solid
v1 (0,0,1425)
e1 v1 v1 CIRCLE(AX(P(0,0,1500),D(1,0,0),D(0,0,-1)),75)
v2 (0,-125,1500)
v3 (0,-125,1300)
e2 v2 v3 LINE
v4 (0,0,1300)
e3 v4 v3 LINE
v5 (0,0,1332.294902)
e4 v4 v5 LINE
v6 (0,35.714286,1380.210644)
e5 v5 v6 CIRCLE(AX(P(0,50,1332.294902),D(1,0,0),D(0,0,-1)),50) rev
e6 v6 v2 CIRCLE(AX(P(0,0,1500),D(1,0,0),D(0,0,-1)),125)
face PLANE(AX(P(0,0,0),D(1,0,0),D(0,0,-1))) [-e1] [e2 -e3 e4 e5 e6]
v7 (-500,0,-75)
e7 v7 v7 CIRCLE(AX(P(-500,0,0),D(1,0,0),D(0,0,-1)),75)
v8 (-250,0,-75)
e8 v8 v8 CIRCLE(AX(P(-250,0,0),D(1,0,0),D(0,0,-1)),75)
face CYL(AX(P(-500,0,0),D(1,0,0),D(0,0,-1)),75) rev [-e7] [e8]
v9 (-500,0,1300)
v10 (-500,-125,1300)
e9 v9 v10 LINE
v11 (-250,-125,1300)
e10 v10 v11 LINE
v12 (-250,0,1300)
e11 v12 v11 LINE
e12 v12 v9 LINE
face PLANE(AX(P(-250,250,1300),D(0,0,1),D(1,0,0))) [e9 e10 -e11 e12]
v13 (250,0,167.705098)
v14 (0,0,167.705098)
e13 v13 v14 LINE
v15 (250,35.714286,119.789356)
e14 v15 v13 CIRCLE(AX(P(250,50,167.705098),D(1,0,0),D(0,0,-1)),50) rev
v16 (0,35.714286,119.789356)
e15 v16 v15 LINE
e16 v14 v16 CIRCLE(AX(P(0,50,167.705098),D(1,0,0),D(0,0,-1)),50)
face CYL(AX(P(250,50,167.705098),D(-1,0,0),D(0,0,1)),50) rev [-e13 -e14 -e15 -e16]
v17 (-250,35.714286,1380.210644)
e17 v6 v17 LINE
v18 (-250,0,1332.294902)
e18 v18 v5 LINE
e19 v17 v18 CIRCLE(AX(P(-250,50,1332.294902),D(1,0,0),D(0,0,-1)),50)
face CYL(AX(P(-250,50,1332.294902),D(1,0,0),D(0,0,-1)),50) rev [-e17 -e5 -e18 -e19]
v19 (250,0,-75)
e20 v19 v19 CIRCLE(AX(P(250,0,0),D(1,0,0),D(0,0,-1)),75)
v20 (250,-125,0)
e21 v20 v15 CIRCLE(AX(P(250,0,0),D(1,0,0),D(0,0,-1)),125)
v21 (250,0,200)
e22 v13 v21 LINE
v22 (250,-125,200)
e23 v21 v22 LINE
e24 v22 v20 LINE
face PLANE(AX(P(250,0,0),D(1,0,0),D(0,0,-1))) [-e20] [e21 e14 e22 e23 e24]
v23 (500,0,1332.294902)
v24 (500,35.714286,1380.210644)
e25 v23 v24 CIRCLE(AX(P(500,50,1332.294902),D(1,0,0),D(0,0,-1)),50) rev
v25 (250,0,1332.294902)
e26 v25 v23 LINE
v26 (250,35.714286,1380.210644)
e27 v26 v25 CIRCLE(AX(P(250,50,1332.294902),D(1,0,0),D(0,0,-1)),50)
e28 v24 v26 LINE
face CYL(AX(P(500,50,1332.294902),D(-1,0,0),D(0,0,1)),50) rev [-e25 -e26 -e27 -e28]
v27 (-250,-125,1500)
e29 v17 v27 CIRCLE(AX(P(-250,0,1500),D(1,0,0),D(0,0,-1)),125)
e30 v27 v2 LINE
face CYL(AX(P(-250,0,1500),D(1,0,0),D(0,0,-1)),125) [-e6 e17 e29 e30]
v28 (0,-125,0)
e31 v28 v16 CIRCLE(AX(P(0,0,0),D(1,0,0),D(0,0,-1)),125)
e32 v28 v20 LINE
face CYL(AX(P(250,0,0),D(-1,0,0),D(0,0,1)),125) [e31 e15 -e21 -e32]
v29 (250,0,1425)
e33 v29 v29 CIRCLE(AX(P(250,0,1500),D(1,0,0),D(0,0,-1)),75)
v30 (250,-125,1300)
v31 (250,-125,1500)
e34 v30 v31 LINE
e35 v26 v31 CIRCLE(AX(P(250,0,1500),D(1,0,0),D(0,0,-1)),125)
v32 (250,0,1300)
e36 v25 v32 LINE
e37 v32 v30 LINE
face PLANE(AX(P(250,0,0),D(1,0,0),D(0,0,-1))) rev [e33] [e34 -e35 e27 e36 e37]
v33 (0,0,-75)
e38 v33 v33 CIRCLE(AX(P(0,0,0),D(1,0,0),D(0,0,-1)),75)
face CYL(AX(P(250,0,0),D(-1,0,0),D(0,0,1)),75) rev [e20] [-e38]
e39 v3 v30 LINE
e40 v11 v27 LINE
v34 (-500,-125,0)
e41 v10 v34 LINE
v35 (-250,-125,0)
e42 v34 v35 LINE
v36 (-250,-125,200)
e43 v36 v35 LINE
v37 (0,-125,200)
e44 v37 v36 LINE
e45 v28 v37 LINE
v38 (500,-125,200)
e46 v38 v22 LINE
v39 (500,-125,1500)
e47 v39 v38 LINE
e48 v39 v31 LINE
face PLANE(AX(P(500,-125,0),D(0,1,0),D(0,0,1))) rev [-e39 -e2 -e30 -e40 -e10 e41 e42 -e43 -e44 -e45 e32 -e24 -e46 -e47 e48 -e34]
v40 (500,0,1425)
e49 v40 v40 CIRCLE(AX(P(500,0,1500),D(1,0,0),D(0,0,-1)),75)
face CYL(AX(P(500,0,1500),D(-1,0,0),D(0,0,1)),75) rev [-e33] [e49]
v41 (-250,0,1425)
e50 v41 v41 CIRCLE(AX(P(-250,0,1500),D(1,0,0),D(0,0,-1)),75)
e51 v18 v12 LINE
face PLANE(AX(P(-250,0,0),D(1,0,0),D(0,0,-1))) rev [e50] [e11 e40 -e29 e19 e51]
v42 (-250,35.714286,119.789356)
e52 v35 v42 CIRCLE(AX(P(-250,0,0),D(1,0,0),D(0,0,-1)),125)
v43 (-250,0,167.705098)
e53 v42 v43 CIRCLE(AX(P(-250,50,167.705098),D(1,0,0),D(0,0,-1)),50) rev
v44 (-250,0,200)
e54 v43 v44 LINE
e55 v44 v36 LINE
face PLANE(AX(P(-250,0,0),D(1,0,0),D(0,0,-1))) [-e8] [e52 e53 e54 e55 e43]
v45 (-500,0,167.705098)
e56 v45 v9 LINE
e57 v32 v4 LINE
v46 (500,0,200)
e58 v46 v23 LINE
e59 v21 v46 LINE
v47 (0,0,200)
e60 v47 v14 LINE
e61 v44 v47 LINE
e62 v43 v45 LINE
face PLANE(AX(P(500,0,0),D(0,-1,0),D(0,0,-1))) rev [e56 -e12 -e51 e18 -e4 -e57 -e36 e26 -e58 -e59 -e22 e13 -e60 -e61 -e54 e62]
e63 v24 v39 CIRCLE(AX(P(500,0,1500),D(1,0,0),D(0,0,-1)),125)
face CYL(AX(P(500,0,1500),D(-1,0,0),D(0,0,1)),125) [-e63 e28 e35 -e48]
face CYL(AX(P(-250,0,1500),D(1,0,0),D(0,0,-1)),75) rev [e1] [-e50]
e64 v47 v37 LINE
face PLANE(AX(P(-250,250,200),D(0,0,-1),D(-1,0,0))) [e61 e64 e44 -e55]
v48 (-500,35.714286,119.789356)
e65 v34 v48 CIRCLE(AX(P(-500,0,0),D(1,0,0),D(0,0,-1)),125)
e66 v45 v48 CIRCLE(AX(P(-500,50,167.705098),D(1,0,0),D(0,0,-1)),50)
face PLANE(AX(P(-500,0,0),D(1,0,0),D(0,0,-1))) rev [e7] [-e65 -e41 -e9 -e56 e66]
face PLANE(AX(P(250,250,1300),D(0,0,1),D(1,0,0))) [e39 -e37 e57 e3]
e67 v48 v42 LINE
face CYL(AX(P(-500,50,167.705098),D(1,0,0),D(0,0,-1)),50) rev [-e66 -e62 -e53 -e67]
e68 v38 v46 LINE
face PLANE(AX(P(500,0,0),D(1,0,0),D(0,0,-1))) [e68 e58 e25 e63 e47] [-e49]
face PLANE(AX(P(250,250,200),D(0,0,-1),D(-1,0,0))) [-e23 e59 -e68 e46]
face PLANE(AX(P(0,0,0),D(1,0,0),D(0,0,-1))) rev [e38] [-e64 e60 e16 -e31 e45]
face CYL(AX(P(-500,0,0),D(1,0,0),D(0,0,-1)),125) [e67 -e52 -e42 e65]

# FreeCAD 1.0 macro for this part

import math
import FreeCAD as App
import Part
import Sketcher
Q = App.Units.Quantity


def edges_at(feature, points):
    """Names of the edges that pass closest to the given points."""
    edges = feature.Shape.Edges
    near = lambda p: min(range(len(edges)), key=lambda i: edges[i].distToShape(Part.Vertex(*p))[0])
    return sorted({f"Edge{near(p) + 1}" for p in points})

doc = App.newDocument("Part")
body = doc.addObject("PartDesign::Body", "Body")

sketch1 = body.newObject("Sketcher::SketchObject", "Sketch")
sketch1.AttachmentSupport = (doc.getObject("YZ_Plane"), [""])
sketch1.MapMode = "FlatFace"
sketch1.addGeometry([
    Part.ArcOfCircle(Part.Circle(App.Vector(0, 0, 0), App.Vector(0, 0, 1), 125), math.radians(90), math.radians(180)),
    Part.LineSegment(App.Vector(0, 125, 0), App.Vector(0, 1375, 0)),
    Part.ArcOfCircle(Part.Circle(App.Vector(0, 1500, 0), App.Vector(0, 0, 1), 125), math.radians(-180), math.radians(-90)),
    Part.LineSegment(App.Vector(-125, 1500, 0), App.Vector(-125, 0, 0)),
], False)
sketch1.addConstraint([
    Sketcher.Constraint("Coincident", 0, 1, 1, 1),
    Sketcher.Constraint("Coincident", 1, 2, 2, 2),
    Sketcher.Constraint("Tangent", 2, 1, 3, 1),
    Sketcher.Constraint("Tangent", 3, 2, 0, 2),
    Sketcher.Constraint("Vertical", 1),
    Sketcher.Constraint("Vertical", 3),
    Sketcher.Constraint("Coincident", 0, 3, -1, 1),
    Sketcher.Constraint("Equal", 0, 2),
    Sketcher.Constraint("PointOnObject", 0, 1, -2),
    Sketcher.Constraint("Radius", 0, Q("125 mm")),
    Sketcher.Constraint("DistanceY", 1, 1, 1, 2, Q("1250 mm")),
])
pad1 = body.newObject("PartDesign::Pad", "Pad")
pad1.Profile = sketch1
pad1.Length = 1000
pad1.Midplane = True

sketch2 = body.newObject("Sketcher::SketchObject", "Sketch001")
sketch2.AttachmentSupport = (doc.getObject("YZ_Plane"), [""])
sketch2.MapMode = "FlatFace"
sketch2.AttachmentOffset = App.Placement(App.Vector(0, 0, 250), App.Rotation())
sketch2.addGeometry([
    Part.Circle(App.Vector(0, 0, 0), App.Vector(0, 0, 1), 125),
    Part.Circle(App.Vector(0, 0, 0), App.Vector(0, 0, 1), 75),
], False)
sketch2.addConstraint([
    Sketcher.Constraint("Coincident", 0, 3, -1, 1),
    Sketcher.Constraint("Coincident", 1, 3, -1, 1),
    Sketcher.Constraint("Diameter", 0, Q("250 mm")),
    Sketcher.Constraint("Diameter", 1, Q("150 mm")),
])
pad2 = body.newObject("PartDesign::Pad", "Pad001")
pad2.Profile = sketch2
pad2.Length = 250
pad2.Reversed = True

sketch3 = body.newObject("Sketcher::SketchObject", "Sketch002")
sketch3.AttachmentSupport = (doc.getObject("YZ_Plane"), [""])
sketch3.MapMode = "FlatFace"
sketch3.addGeometry([
    Part.Circle(App.Vector(0, 1500, 0), App.Vector(0, 0, 1), 125),
    Part.Circle(App.Vector(0, 1500, 0), App.Vector(0, 0, 1), 75),
], False)
sketch3.addConstraint([
    Sketcher.Constraint("Coincident", 1, 3, 0, 3),
    Sketcher.Constraint("PointOnObject", 0, 3, -2),
    Sketcher.Constraint("Diameter", 0, Q("250 mm")),
    Sketcher.Constraint("Diameter", 1, Q("150 mm")),
    Sketcher.Constraint("DistanceY", -1, 1, 0, 3, Q("1500 mm")),
])
pad3 = body.newObject("PartDesign::Pad", "Pad002")
pad3.Profile = sketch3
pad3.Length = 250
pad3.Reversed = True

sketch4 = body.newObject("Sketcher::SketchObject", "Sketch003")
sketch4.AttachmentSupport = (doc.getObject("YZ_Plane"), [""])
sketch4.MapMode = "FlatFace"
sketch4.AttachmentOffset = App.Placement(App.Vector(0, 0, -250), App.Rotation())
sketch4.addGeometry([
    Part.Circle(App.Vector(0, 0, 0), App.Vector(0, 0, 1), 125),
    Part.Circle(App.Vector(0, 0, 0), App.Vector(0, 0, 1), 75),
], False)
sketch4.addConstraint([
    Sketcher.Constraint("Coincident", 0, 3, -1, 1),
    Sketcher.Constraint("Coincident", 1, 3, -1, 1),
    Sketcher.Constraint("Diameter", 0, Q("250 mm")),
    Sketcher.Constraint("Diameter", 1, Q("150 mm")),
])
pad4 = body.newObject("PartDesign::Pad", "Pad003")
pad4.Profile = sketch4
pad4.Length = 250
pad4.Reversed = True

sketch5 = body.newObject("Sketcher::SketchObject", "Sketch004")
sketch5.AttachmentSupport = (doc.getObject("YZ_Plane"), [""])
sketch5.MapMode = "FlatFace"
sketch5.AttachmentOffset = App.Placement(App.Vector(0, 0, 500), App.Rotation())
sketch5.addGeometry([
    Part.Circle(App.Vector(0, 1500, 0), App.Vector(0, 0, 1), 125),
    Part.Circle(App.Vector(0, 1500, 0), App.Vector(0, 0, 1), 75),
], False)
sketch5.addConstraint([
    Sketcher.Constraint("Coincident", 1, 3, 0, 3),
    Sketcher.Constraint("PointOnObject", 0, 3, -2),
    Sketcher.Constraint("Diameter", 0, Q("250 mm")),
    Sketcher.Constraint("Diameter", 1, Q("150 mm")),
    Sketcher.Constraint("DistanceY", -1, 1, 0, 3, Q("1500 mm")),
])
pad5 = body.newObject("PartDesign::Pad", "Pad004")
pad5.Profile = sketch5
pad5.Length = 250
pad5.Reversed = True

sketch6 = body.newObject("Sketcher::SketchObject", "Sketch005")
sketch6.AttachmentSupport = (doc.getObject("XZ_Plane"), [""])
sketch6.MapMode = "FlatFace"
sketch6.addGeometry([
    Part.LineSegment(App.Vector(-250, -550.682417, 0), App.Vector(-250, 200, 0)),
    Part.LineSegment(App.Vector(-250, 200, 0), App.Vector(0, 200, 0)),
    Part.LineSegment(App.Vector(0, 200, 0), App.Vector(0, -342.970708, 0)),
    Part.LineSegment(App.Vector(0, -342.970708, 0), App.Vector(250, -342.970708, 0)),
    Part.LineSegment(App.Vector(250, -342.970708, 0), App.Vector(250, 200, 0)),
    Part.LineSegment(App.Vector(250, 200, 0), App.Vector(760.214276, 200, 0)),
    Part.LineSegment(App.Vector(760.214276, 200, 0), App.Vector(760.214276, -550.682417, 0)),
    Part.LineSegment(App.Vector(760.214276, -550.682417, 0), App.Vector(-250, -550.682417, 0)),
    Part.LineSegment(App.Vector(250, 2214.630516, 0), App.Vector(250, 1300, 0)),
    Part.LineSegment(App.Vector(250, 1300, 0), App.Vector(0, 1300, 0)),
    Part.LineSegment(App.Vector(0, 1300, 0), App.Vector(0, 1946.053134, 0)),
    Part.LineSegment(App.Vector(0, 1946.053134, 0), App.Vector(-250, 1946.053134, 0)),
    Part.LineSegment(App.Vector(-250, 1946.053134, 0), App.Vector(-250, 1300, 0)),
    Part.LineSegment(App.Vector(-250, 1300, 0), App.Vector(-708.695998, 1300, 0)),
    Part.LineSegment(App.Vector(-708.695998, 1300, 0), App.Vector(-708.695998, 2214.630516, 0)),
    Part.LineSegment(App.Vector(-708.695998, 2214.630516, 0), App.Vector(250, 2214.630516, 0)),
], False)
sketch6.addConstraint([
    Sketcher.Constraint("Coincident", 0, 2, 1, 1),
    Sketcher.Constraint("Coincident", 1, 2, 2, 1),
    Sketcher.Constraint("Coincident", 2, 2, 3, 1),
    Sketcher.Constraint("Coincident", 3, 2, 4, 1),
    Sketcher.Constraint("Coincident", 4, 2, 5, 1),
    Sketcher.Constraint("Coincident", 5, 2, 6, 1),
    Sketcher.Constraint("Coincident", 6, 2, 7, 1),
    Sketcher.Constraint("Coincident", 7, 2, 0, 1),
    Sketcher.Constraint("Coincident", 8, 2, 9, 1),
    Sketcher.Constraint("Coincident", 9, 2, 10, 1),
    Sketcher.Constraint("Coincident", 10, 2, 11, 1),
    Sketcher.Constraint("Coincident", 11, 2, 12, 1),
    Sketcher.Constraint("Coincident", 12, 2, 13, 1),
    Sketcher.Constraint("Coincident", 13, 2, 14, 1),
    Sketcher.Constraint("Coincident", 14, 2, 15, 1),
    Sketcher.Constraint("Coincident", 15, 2, 8, 1),
    Sketcher.Constraint("Vertical", 0),
    Sketcher.Constraint("Horizontal", 1),
    Sketcher.Constraint("Vertical", 2),
    Sketcher.Constraint("Horizontal", 3),
    Sketcher.Constraint("Vertical", 4),
    Sketcher.Constraint("Horizontal", 5),
    Sketcher.Constraint("Vertical", 6),
    Sketcher.Constraint("Horizontal", 7),
    Sketcher.Constraint("Vertical", 8),
    Sketcher.Constraint("Horizontal", 9),
    Sketcher.Constraint("Vertical", 10),
    Sketcher.Constraint("Horizontal", 11),
    Sketcher.Constraint("Vertical", 12),
    Sketcher.Constraint("Horizontal", 13),
    Sketcher.Constraint("Vertical", 14),
    Sketcher.Constraint("Horizontal", 15),
    Sketcher.Constraint("Symmetric", 0, 2, 4, 2, -2),
    Sketcher.Constraint("Symmetric", 8, 2, 12, 2, -2),
    Sketcher.Constraint("PointOnObject", 1, 2, -2),
    Sketcher.Constraint("PointOnObject", 9, 2, -2),
    Sketcher.Constraint("Vertical", 4, 2, 8, 2),
    Sketcher.Constraint("DistanceX", 1, 1, 1, 2, Q("250 mm")),
    Sketcher.Constraint("DistanceY", -1, 1, 0, 2, Q("200 mm")),
    Sketcher.Constraint("DistanceY", -1, 1, 8, 2, Q("1300 mm")),
    Sketcher.Constraint("DistanceX", 13, 2, 13, 1, Q("458.695998 mm")),
    Sketcher.Constraint("DistanceY", 2, 2, 2, 1, Q("542.970708 mm")),
    Sketcher.Constraint("DistanceX", 5, 1, 5, 2, Q("510.214276 mm")),
    Sketcher.Constraint("DistanceY", 0, 1, 0, 2, Q("750.682417 mm")),
    Sketcher.Constraint("DistanceY", 8, 2, 8, 1, Q("914.630516 mm")),
    Sketcher.Constraint("DistanceY", 10, 1, 10, 2, Q("646.053134 mm")),
])
pocket1 = body.newObject("PartDesign::Pocket", "Pocket")
pocket1.Profile = sketch6
pocket1.Type = "ThroughAll"
pocket1.Midplane = True
doc.recompute()

fillet = body.newObject("PartDesign::Fillet", "Fillet")
fillet.Base = (pocket1, edges_at(pocket1, [
    (125, 0, 125),
    (-125, 0, 1375),
    (-375, 0, 125),
    (375, 0, 1375),
]))
fillet.Radius = 50

doc.recompute()
